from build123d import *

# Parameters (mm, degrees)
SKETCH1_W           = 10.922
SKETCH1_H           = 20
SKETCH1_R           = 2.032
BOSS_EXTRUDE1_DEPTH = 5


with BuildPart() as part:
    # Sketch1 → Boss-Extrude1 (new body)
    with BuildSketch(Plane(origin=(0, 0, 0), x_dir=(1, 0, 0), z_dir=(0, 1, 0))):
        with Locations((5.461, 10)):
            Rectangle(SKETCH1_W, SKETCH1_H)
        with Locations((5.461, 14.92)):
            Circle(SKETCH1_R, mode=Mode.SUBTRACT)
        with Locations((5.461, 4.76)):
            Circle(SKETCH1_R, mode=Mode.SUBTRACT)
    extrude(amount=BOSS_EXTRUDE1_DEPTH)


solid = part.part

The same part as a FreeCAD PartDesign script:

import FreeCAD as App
import Part
import Sketcher
Q = App.Units.Quantity


def add_polygon(sketch, points):
    """Adds a closed chain of lines whose ends are joined by coincident constraints."""
    first, n = sketch.GeometryCount, len(points)
    for a, b in zip(points, points[1:] + points[:1]):
        sketch.addGeometry(Part.LineSegment(App.Vector(*a, 0), App.Vector(*b, 0)), False)
    for i in range(n):
        sketch.addConstraint(Sketcher.Constraint("Coincident", first + i, 2, first + (i + 1) % n, 1))

doc = App.newDocument("Part")
params = doc.addObject("Spreadsheet::Sheet", "Params")
for row, (alias, value) in enumerate([
    ("sketch1_height", "20 mm"),
    ("pad1_length", "5 mm"),
], start=1):
    params.set(f"A{row}", alias)
    params.set(f"B{row}", "=" + value)
    params.setAlias(f"B{row}", alias)

body = doc.addObject("PartDesign::Body", "Body")

# Sketch on XZ plane
sketch1 = body.newObject("Sketcher::SketchObject", "Sketch")
sketch1.AttachmentSupport = (doc.getObject("XZ_Plane"), [""])
sketch1.MapMode = "FlatFace"
add_polygon(sketch1, [(0, -20), (0, 0), (10.9, 0), (10.9, -20)])  # lines 0-3
sketch1.addGeometry(Part.Circle(App.Vector(5.5, -4.8, 0), App.Vector(0, 0, 1), 2), False)  # 4
sketch1.addGeometry(Part.Circle(App.Vector(5.5, -14.9, 0), App.Vector(0, 0, 1), 2), False)  # 5
sketch1.addConstraint([
    Sketcher.Constraint("Vertical", 0),
    Sketcher.Constraint("Horizontal", 1),
    Sketcher.Constraint("Vertical", 2),
    Sketcher.Constraint("Horizontal", 3),
    Sketcher.Constraint("Coincident", 0, 2, -1, 1),
    Sketcher.Constraint("Equal", 4, 5),
    Sketcher.Constraint("Vertical", 4, 3, 5, 3),
    Sketcher.Constraint("DistanceY", 0, 1, 0, 2, Q("20 mm")),
    Sketcher.Constraint("Diameter", 4, Q("4.064 mm")),
    Sketcher.Constraint("DistanceX", 1, 1, 1, 2, Q("10.922 mm")),
    Sketcher.Constraint("DistanceY", 4, 3, -1, 1, Q("4.76 mm")),
    Sketcher.Constraint("DistanceY", 5, 3, -1, 1, Q("14.92 mm")),
    Sketcher.Constraint("DistanceX", -1, 1, 4, 3, Q("5.461 mm")),
])
sketch1.setExpression("Constraints[11]", "Params.sketch1_height")
pad1 = body.newObject("PartDesign::Pad", "Pad")
pad1.Profile = sketch1
pad1.setExpression("Length", "Params.pad1_length")
pad1.Reversed = True

doc.recompute()
